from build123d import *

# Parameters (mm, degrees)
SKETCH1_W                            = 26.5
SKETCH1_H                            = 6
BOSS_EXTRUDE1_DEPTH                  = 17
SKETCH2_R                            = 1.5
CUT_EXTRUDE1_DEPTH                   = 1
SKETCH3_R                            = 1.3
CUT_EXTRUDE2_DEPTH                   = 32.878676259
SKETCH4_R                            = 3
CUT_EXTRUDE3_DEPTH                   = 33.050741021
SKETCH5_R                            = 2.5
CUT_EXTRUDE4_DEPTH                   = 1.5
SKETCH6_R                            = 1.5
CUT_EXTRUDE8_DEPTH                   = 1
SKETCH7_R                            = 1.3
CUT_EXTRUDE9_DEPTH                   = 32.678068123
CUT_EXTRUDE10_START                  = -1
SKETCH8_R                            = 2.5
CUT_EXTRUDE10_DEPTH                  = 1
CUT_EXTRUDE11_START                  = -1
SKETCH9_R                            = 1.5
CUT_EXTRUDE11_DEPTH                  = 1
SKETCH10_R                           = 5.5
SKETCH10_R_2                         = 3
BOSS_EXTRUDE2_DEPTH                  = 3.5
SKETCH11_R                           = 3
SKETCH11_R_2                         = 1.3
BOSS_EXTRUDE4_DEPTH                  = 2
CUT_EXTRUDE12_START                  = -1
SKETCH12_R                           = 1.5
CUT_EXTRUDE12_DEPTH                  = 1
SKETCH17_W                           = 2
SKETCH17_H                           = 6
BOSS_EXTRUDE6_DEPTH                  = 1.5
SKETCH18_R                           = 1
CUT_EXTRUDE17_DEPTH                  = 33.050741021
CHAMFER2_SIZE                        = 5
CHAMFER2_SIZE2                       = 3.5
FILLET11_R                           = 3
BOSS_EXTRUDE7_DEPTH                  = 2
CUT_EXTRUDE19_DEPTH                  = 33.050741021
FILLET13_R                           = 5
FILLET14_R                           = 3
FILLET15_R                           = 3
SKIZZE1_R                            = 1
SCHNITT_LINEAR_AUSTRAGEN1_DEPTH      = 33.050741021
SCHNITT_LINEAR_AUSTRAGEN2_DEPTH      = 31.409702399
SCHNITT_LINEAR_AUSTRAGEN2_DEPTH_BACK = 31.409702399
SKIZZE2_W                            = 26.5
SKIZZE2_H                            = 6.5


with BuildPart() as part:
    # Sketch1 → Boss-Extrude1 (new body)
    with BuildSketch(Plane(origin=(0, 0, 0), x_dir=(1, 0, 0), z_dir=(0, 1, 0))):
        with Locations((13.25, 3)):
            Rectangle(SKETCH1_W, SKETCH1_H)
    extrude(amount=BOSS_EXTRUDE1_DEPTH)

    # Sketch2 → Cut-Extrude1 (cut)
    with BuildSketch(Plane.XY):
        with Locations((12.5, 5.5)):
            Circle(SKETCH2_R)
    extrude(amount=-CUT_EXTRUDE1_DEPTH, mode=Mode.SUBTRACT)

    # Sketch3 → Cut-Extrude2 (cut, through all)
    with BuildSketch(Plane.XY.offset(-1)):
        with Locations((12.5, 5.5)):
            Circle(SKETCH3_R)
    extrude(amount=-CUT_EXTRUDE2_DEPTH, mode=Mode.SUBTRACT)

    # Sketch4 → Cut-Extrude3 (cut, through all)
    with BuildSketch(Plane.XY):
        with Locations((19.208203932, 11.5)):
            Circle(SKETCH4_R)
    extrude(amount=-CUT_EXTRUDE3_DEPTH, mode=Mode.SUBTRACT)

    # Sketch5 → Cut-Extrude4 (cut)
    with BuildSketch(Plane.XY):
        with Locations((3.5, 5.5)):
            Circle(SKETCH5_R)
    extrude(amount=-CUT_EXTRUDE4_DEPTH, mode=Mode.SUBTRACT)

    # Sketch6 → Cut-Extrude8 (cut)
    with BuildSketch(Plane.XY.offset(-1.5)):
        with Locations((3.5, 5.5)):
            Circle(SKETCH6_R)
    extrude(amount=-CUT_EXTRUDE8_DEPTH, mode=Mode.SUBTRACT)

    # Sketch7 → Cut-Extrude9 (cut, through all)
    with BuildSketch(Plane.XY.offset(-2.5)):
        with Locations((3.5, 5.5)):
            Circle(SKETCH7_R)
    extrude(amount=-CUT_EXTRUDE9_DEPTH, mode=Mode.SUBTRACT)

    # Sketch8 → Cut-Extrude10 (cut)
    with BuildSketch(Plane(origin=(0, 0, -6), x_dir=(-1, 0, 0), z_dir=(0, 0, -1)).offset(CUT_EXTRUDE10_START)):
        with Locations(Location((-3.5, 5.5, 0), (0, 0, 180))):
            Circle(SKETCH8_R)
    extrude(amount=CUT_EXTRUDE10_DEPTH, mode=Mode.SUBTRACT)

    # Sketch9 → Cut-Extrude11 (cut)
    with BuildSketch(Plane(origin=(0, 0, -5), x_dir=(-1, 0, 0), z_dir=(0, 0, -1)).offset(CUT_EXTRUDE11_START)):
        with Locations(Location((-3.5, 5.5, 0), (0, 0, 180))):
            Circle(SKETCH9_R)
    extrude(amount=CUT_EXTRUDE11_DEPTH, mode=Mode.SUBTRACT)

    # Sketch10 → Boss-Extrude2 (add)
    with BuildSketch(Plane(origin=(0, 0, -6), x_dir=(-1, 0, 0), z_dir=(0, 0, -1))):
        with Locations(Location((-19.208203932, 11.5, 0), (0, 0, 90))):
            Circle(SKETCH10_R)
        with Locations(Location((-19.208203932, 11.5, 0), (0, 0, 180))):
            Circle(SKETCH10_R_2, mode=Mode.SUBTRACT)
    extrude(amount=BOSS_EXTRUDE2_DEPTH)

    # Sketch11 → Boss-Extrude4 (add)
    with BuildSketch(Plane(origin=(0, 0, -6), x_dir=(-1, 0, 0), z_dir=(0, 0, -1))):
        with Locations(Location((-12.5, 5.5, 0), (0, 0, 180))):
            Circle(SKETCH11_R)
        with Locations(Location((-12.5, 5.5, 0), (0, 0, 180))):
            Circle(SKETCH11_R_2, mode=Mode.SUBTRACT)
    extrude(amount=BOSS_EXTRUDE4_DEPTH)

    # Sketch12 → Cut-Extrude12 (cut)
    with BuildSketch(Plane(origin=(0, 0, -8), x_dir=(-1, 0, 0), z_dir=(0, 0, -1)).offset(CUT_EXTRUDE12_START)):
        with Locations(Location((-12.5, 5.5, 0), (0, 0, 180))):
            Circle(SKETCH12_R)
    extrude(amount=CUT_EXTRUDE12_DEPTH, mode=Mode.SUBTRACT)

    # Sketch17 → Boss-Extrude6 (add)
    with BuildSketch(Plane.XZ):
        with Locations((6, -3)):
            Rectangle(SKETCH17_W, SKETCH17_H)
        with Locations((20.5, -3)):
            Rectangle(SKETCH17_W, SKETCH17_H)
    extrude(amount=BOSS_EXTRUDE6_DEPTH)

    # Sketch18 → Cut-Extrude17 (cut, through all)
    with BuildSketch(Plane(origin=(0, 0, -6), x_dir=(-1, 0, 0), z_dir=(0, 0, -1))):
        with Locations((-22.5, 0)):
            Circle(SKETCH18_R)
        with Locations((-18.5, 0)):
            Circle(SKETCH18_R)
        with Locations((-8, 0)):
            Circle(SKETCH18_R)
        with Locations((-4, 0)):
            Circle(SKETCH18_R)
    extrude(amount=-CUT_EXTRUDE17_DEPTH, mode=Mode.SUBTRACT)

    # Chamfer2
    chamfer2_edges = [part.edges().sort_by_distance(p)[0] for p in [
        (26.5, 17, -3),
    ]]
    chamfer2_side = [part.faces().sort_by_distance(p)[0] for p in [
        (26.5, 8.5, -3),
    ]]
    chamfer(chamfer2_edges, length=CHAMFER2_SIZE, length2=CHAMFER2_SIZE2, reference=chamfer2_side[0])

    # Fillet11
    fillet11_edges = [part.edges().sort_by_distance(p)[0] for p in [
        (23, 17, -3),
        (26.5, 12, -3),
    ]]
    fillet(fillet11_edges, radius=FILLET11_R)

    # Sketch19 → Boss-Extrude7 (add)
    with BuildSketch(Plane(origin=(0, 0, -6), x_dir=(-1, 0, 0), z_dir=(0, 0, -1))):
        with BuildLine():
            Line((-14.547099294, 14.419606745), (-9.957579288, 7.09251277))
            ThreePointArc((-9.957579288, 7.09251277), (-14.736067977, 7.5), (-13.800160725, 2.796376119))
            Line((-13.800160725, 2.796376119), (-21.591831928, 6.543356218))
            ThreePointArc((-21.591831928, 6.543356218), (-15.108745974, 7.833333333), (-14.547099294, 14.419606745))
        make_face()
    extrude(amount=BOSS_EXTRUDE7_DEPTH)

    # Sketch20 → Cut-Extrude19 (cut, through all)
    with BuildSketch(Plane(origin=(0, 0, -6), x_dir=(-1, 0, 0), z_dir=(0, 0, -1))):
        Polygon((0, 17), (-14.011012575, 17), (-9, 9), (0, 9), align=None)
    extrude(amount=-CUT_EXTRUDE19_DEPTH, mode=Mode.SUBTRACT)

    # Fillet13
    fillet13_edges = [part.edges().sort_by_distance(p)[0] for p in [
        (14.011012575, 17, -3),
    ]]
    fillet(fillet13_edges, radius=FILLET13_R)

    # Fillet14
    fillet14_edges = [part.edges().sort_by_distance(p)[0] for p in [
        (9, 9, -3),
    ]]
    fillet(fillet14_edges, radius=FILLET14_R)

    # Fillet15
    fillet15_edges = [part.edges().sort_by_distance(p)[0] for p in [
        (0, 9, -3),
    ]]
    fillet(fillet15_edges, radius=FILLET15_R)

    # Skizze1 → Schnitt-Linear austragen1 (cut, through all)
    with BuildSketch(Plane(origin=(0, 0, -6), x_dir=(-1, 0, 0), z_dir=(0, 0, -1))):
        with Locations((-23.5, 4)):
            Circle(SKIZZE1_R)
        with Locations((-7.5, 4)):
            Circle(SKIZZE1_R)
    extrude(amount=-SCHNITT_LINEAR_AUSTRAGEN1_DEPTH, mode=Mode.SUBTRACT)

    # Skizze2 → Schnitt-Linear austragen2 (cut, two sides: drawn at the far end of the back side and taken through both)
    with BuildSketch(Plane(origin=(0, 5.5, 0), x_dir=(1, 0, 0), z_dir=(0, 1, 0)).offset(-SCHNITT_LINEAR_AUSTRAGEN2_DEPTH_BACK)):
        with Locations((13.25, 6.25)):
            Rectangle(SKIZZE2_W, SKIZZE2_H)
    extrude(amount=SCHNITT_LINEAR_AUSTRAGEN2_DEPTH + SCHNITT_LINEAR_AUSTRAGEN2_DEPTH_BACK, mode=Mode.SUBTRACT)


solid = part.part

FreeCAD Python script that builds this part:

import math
import FreeCAD as App
import Part
import Sketcher

V = App.Vector


def edges_at(feature, points):
    """Names of the edges that pass closest to the given points."""
    edges = feature.Shape.Edges
    near = lambda p: min(range(len(edges)), key=lambda i: edges[i].distToShape(Part.Vertex(*p))[0])
    return sorted({f"Edge{near(p) + 1}" for p in points})


def add_polygon(sketch, points):
    """Adds a closed chain of lines whose ends are joined by coincident constraints."""
    first, n = sketch.GeometryCount, len(points)
    for a, b in zip(points, points[1:] + points[:1]):
        sketch.addGeometry(Part.LineSegment(App.Vector(*a, 0), App.Vector(*b, 0)), False)
    for i in range(n):
        sketch.addConstraint(Sketcher.Constraint("Coincident", first + i, 2, first + (i + 1) % n, 1))

doc = App.newDocument("Part")
body = doc.addObject("PartDesign::Body", "Body")

# Sketch on XZ plane
sketch1 = body.newObject("Sketcher::SketchObject", "Sketch")
sketch1.AttachmentSupport = (doc.getObject("XZ_Plane"), [""])
sketch1.MapMode = "FlatFace"
add_polygon(sketch1, [(0, -6), (0, 0), (26, 0), (26, -6)])  # lines 0-3
sketch1.addConstraint(Sketcher.Constraint("Vertical", 0))
sketch1.addConstraint(Sketcher.Constraint("Horizontal", 1))
sketch1.addConstraint(Sketcher.Constraint("Vertical", 2))
sketch1.addConstraint(Sketcher.Constraint("Horizontal", 3))
sketch1.addConstraint(Sketcher.Constraint("Coincident", 0, 2, -1, 1))
sketch1.addConstraint(Sketcher.Constraint("DistanceY", 0, 1, 0, 2, 6.0))
sketch1.addConstraint(Sketcher.Constraint("DistanceX", 1, 1, 1, 2, 26.5))
pad1 = body.newObject("PartDesign::Pad", "Pad")
pad1.Profile = sketch1
pad1.Length = 17
pad1.Reversed = True

# Sketch on XY plane
sketch2 = body.newObject("Sketcher::SketchObject", "Sketch001")
sketch2.AttachmentSupport = (doc.getObject("XY_Plane"), [""])
sketch2.MapMode = "FlatFace"
sketch2.addGeometry(Part.Circle(V(12.5, 5.5, 0), V(0, 0, 1), 1.5), False)
sketch2.addConstraint(Sketcher.Constraint("Diameter", 0, 3.0))
sketch2.addConstraint(Sketcher.Constraint("DistanceX", -1, 1, 0, 3, 12.5))
sketch2.addConstraint(Sketcher.Constraint("DistanceY", -1, 1, 0, 3, 5.5))
pocket1 = body.newObject("PartDesign::Pocket", "Pocket")
pocket1.Profile = sketch2
pocket1.Length = 1

# Sketch on XY plane
sketch3 = body.newObject("Sketcher::SketchObject", "Sketch002")
sketch3.AttachmentSupport = (doc.getObject("XY_Plane"), [""])
sketch3.MapMode = "FlatFace"
sketch3.AttachmentOffset = App.Placement(V(0, 0, -1), App.Rotation())
sketch3.addGeometry(Part.Circle(V(12.5, 5.5, 0), V(0, 0, 1), 1.3), False)
sketch3.addConstraint(Sketcher.Constraint("Diameter", 0, 2.6))
sketch3.addConstraint(Sketcher.Constraint("DistanceX", -1, 1, 0, 3, 12.5))
sketch3.addConstraint(Sketcher.Constraint("DistanceY", -1, 1, 0, 3, 5.5))
pocket2 = body.newObject("PartDesign::Pocket", "Pocket001")
pocket2.Profile = sketch3
pocket2.Type = "ThroughAll"

# Sketch on XY plane
sketch4 = body.newObject("Sketcher::SketchObject", "Sketch003")
sketch4.AttachmentSupport = (doc.getObject("XY_Plane"), [""])
sketch4.MapMode = "FlatFace"
sketch4.addGeometry(Part.Circle(V(19.2, 11.5, 0), V(0, 0, 1), 3), False)
sketch4.addConstraint(Sketcher.Constraint("Diameter", 0, 6.0))
sketch4.addConstraint(Sketcher.Constraint("DistanceY", -1, 1, 0, 3, 11.5))
sketch4.addConstraint(Sketcher.Constraint("DistanceX", -1, 1, 0, 3, 19.208204))
pocket3 = body.newObject("PartDesign::Pocket", "Pocket002")
pocket3.Profile = sketch4
pocket3.Type = "ThroughAll"

# Sketch on XY plane
sketch5 = body.newObject("Sketcher::SketchObject", "Sketch004")
sketch5.AttachmentSupport = (doc.getObject("XY_Plane"), [""])
sketch5.MapMode = "FlatFace"
sketch5.addGeometry(Part.Circle(V(3.5, 5.5, 0), V(0, 0, 1), 2.5), False)
sketch5.addConstraint(Sketcher.Constraint("Diameter", 0, 5.0))
sketch5.addConstraint(Sketcher.Constraint("DistanceX", -1, 1, 0, 3, 3.5))
sketch5.addConstraint(Sketcher.Constraint("DistanceY", -1, 1, 0, 3, 5.5))
pocket4 = body.newObject("PartDesign::Pocket", "Pocket003")
pocket4.Profile = sketch5
pocket4.Length = 1.5

# Sketch on XY plane
sketch6 = body.newObject("Sketcher::SketchObject", "Sketch005")
sketch6.AttachmentSupport = (doc.getObject("XY_Plane"), [""])
sketch6.MapMode = "FlatFace"
sketch6.AttachmentOffset = App.Placement(V(0, 0, -1.5), App.Rotation())
sketch6.addGeometry(Part.Circle(V(3.5, 5.5, 0), V(0, 0, 1), 1.5), False)
sketch6.addConstraint(Sketcher.Constraint("Diameter", 0, 3.0))
sketch6.addConstraint(Sketcher.Constraint("DistanceX", -1, 1, 0, 3, 3.5))
sketch6.addConstraint(Sketcher.Constraint("DistanceY", -1, 1, 0, 3, 5.5))
pocket5 = body.newObject("PartDesign::Pocket", "Pocket004")
pocket5.Profile = sketch6
pocket5.Length = 1

# Sketch on XY plane
sketch7 = body.newObject("Sketcher::SketchObject", "Sketch006")
sketch7.AttachmentSupport = (doc.getObject("XY_Plane"), [""])
sketch7.MapMode = "FlatFace"
sketch7.AttachmentOffset = App.Placement(V(0, 0, -2.5), App.Rotation())
sketch7.addGeometry(Part.Circle(V(3.5, 5.5, 0), V(0, 0, 1), 1.3), False)
sketch7.addConstraint(Sketcher.Constraint("Diameter", 0, 2.6))
sketch7.addConstraint(Sketcher.Constraint("DistanceX", -1, 1, 0, 3, 3.5))
sketch7.addConstraint(Sketcher.Constraint("DistanceY", -1, 1, 0, 3, 5.5))
pocket6 = body.newObject("PartDesign::Pocket", "Pocket005")
pocket6.Profile = sketch7
pocket6.Type = "ThroughAll"

# Sketch on XY plane
sketch8 = body.newObject("Sketcher::SketchObject", "Sketch007")
sketch8.AttachmentSupport = (doc.getObject("XY_Plane"), [""])
sketch8.MapMode = "FlatFace"
sketch8.AttachmentOffset = App.Placement(V(0, 0, -5), App.Rotation())
sketch8.addGeometry(Part.Circle(V(3.5, 5.5, 0), V(0, 0, 1), 2.5), False)
sketch8.addConstraint(Sketcher.Constraint("Diameter", 0, 5.0))
sketch8.addConstraint(Sketcher.Constraint("DistanceX", -1, 1, 0, 3, 3.5))
sketch8.addConstraint(Sketcher.Constraint("DistanceY", -1, 1, 0, 3, 5.5))
pocket7 = body.newObject("PartDesign::Pocket", "Pocket006")
pocket7.Profile = sketch8
pocket7.Length = 1

# Sketch on XY plane
sketch9 = body.newObject("Sketcher::SketchObject", "Sketch008")
sketch9.AttachmentSupport = (doc.getObject("XY_Plane"), [""])
sketch9.MapMode = "FlatFace"
sketch9.AttachmentOffset = App.Placement(V(0, 0, -4), App.Rotation())
sketch9.addGeometry(Part.Circle(V(3.5, 5.5, 0), V(0, 0, 1), 1.5), False)
sketch9.addConstraint(Sketcher.Constraint("Diameter", 0, 3.0))
sketch9.addConstraint(Sketcher.Constraint("DistanceX", -1, 1, 0, 3, 3.5))
sketch9.addConstraint(Sketcher.Constraint("DistanceY", -1, 1, 0, 3, 5.5))
pocket8 = body.newObject("PartDesign::Pocket", "Pocket007")
pocket8.Profile = sketch9
pocket8.Length = 1

# Sketch on XY plane
sketch10 = body.newObject("Sketcher::SketchObject", "Sketch009")
sketch10.AttachmentSupport = (doc.getObject("XY_Plane"), [""])
sketch10.MapMode = "FlatFace"
sketch10.AttachmentOffset = App.Placement(V(0, 0, -6), App.Rotation())
sketch10.addGeometry(Part.Circle(V(19.2, 11.5, 0), V(0, 0, 1), 5.5), False)
sketch10.addGeometry(Part.Circle(V(19.2, 11.5, 0), V(0, 0, 1), 3), False)
sketch10.addConstraint(Sketcher.Constraint("Coincident", 1, 3, 0, 3))
sketch10.addConstraint(Sketcher.Constraint("Diameter", 0, 11.0))
sketch10.addConstraint(Sketcher.Constraint("Diameter", 1, 6.0))
sketch10.addConstraint(Sketcher.Constraint("DistanceY", -1, 1, 0, 3, 11.5))
sketch10.addConstraint(Sketcher.Constraint("DistanceX", -1, 1, 0, 3, 19.208204))
pad2 = body.newObject("PartDesign::Pad", "Pad001")
pad2.Profile = sketch10
pad2.Length = 3.5
pad2.Reversed = True

# Sketch on XY plane
sketch11 = body.newObject("Sketcher::SketchObject", "Sketch010")
sketch11.AttachmentSupport = (doc.getObject("XY_Plane"), [""])
sketch11.MapMode = "FlatFace"
sketch11.AttachmentOffset = App.Placement(V(0, 0, -6), App.Rotation())
sketch11.addGeometry(Part.Circle(V(12.5, 5.5, 0), V(0, 0, 1), 3), False)
sketch11.addGeometry(Part.Circle(V(12.5, 5.5, 0), V(0, 0, 1), 1.3), False)
sketch11.addConstraint(Sketcher.Constraint("Coincident", 1, 3, 0, 3))
sketch11.addConstraint(Sketcher.Constraint("Diameter", 0, 6.0))
sketch11.addConstraint(Sketcher.Constraint("Diameter", 1, 2.6))
sketch11.addConstraint(Sketcher.Constraint("DistanceX", -1, 1, 0, 3, 12.5))
sketch11.addConstraint(Sketcher.Constraint("DistanceY", -1, 1, 0, 3, 5.5))
pad3 = body.newObject("PartDesign::Pad", "Pad002")
pad3.Profile = sketch11
pad3.Length = 2
pad3.Reversed = True

# Sketch on XY plane
sketch12 = body.newObject("Sketcher::SketchObject", "Sketch011")
sketch12.AttachmentSupport = (doc.getObject("XY_Plane"), [""])
sketch12.MapMode = "FlatFace"
sketch12.AttachmentOffset = App.Placement(V(0, 0, -7), App.Rotation())
sketch12.addGeometry(Part.Circle(V(12.5, 5.5, 0), V(0, 0, 1), 1.5), False)
sketch12.addConstraint(Sketcher.Constraint("Diameter", 0, 3.0))
sketch12.addConstraint(Sketcher.Constraint("DistanceX", -1, 1, 0, 3, 12.5))
sketch12.addConstraint(Sketcher.Constraint("DistanceY", -1, 1, 0, 3, 5.5))
pocket9 = body.newObject("PartDesign::Pocket", "Pocket008")
pocket9.Profile = sketch12
pocket9.Length = 1

# Sketch on XZ plane
sketch13 = body.newObject("Sketcher::SketchObject", "Sketch012")
sketch13.AttachmentSupport = (doc.getObject("XZ_Plane"), [""])
sketch13.MapMode = "FlatFace"
add_polygon(sketch13, [(5, 0), (5, -6), (7, -6), (7, 0)])  # lines 0-3
add_polygon(sketch13, [(19.5, 0), (19.5, -6), (21.5, -6), (21.5, 0)])  # lines 4-7
sketch13.addConstraint(Sketcher.Constraint("Vertical", 0))
sketch13.addConstraint(Sketcher.Constraint("Horizontal", 1))
sketch13.addConstraint(Sketcher.Constraint("Vertical", 2))
sketch13.addConstraint(Sketcher.Constraint("Horizontal", 3))
sketch13.addConstraint(Sketcher.Constraint("Vertical", 4))
sketch13.addConstraint(Sketcher.Constraint("Horizontal", 5))
sketch13.addConstraint(Sketcher.Constraint("Vertical", 6))
sketch13.addConstraint(Sketcher.Constraint("Horizontal", 7))
sketch13.addConstraint(Sketcher.Constraint("PointOnObject", 2, 2, -1))
sketch13.addConstraint(Sketcher.Constraint("PointOnObject", 6, 2, -1))
sketch13.addConstraint(Sketcher.Constraint("Horizontal", 1, 2, 4, 2))
sketch13.addConstraint(Sketcher.Constraint("Equal", 3, 5))
sketch13.addConstraint(Sketcher.Constraint("DistanceX", 1, 1, 1, 2, 2.0))
sketch13.addConstraint(Sketcher.Constraint("DistanceY", 0, 2, 0, 1, 6.0))
sketch13.addConstraint(Sketcher.Constraint("DistanceX", -1, 1, 0, 2, 5.0))
sketch13.addConstraint(Sketcher.Constraint("DistanceX", -1, 1, 4, 2, 19.5))
pad4 = body.newObject("PartDesign::Pad", "Pad003")
pad4.Profile = sketch13
pad4.Length = 1.5

# Sketch on XY plane
sketch14 = body.newObject("Sketcher::SketchObject", "Sketch013")
sketch14.AttachmentSupport = (doc.getObject("XY_Plane"), [""])
sketch14.MapMode = "FlatFace"
sketch14.AttachmentOffset = App.Placement(V(0, 0, -6), App.Rotation())
sketch14.addGeometry(Part.Circle(V(22.5, 0, 0), V(0, 0, 1), 1), False)
sketch14.addGeometry(Part.Circle(V(18.5, 0, 0), V(0, 0, 1), 1), False)
sketch14.addGeometry(Part.Circle(V(8, 0, 0), V(0, 0, 1), 1), False)
sketch14.addGeometry(Part.Circle(V(4, 0, 0), V(0, 0, 1), 1), False)
sketch14.addConstraint(Sketcher.Constraint("Equal", 0, 1))
sketch14.addConstraint(Sketcher.Constraint("Equal", 1, 2))
sketch14.addConstraint(Sketcher.Constraint("Equal", 2, 3))
sketch14.addConstraint(Sketcher.Constraint("PointOnObject", 0, 3, -1))
sketch14.addConstraint(Sketcher.Constraint("PointOnObject", 1, 3, -1))
sketch14.addConstraint(Sketcher.Constraint("PointOnObject", 2, 3, -1))
sketch14.addConstraint(Sketcher.Constraint("PointOnObject", 3, 3, -1))
sketch14.addConstraint(Sketcher.Constraint("Diameter", 0, 2.0))
sketch14.addConstraint(Sketcher.Constraint("DistanceX", -1, 1, 2, 3, 8.0))
sketch14.addConstraint(Sketcher.Constraint("DistanceX", -1, 1, 3, 3, 4.0))
sketch14.addConstraint(Sketcher.Constraint("DistanceX", 1, 3, 0, 3, 4.0))
sketch14.addConstraint(Sketcher.Constraint("DistanceX", -1, 1, 0, 3, 22.5))
pocket10 = body.newObject("PartDesign::Pocket", "Pocket009")
pocket10.Profile = sketch14
pocket10.Type = "ThroughAll"
pocket10.Reversed = True
doc.recompute()

chamfer = body.newObject("PartDesign::Chamfer", "Chamfer")
chamfer.Base = (pocket10, edges_at(pocket10, [(26.5, 17, -3)]))
chamfer.ChamferType = "Two distances"
chamfer.Size = 5
chamfer.Size2 = 3.5
doc.recompute()

fillet = body.newObject("PartDesign::Fillet", "Fillet")
fillet.Base = (chamfer, edges_at(chamfer, [(23, 17, -3), (26.5, 12, -3)]))
fillet.Radius = 3

# Sketch on XY plane
sketch15 = body.newObject("Sketcher::SketchObject", "Sketch014")
sketch15.AttachmentSupport = (doc.getObject("XY_Plane"), [""])
sketch15.MapMode = "FlatFace"
sketch15.AttachmentOffset = App.Placement(V(0, 0, -6), App.Rotation())
sketch15.addGeometry(Part.LineSegment(V(10, 7.1, 0), V(14.5, 14.4, 0)), False)
sketch15.addGeometry(Part.ArcOfCircle(Part.Circle(V(19.2, 11.5, 0), V(0, 0, 1), 5.5), math.radians(148), math.radians(296)), False)
sketch15.addGeometry(Part.LineSegment(V(21.6, 6.5, 0), V(13.8, 2.8, 0)), False)
sketch15.addGeometry(Part.ArcOfCircle(Part.Circle(V(12.5, 5.5, 0), V(0, 0, 1), 3), math.radians(-64), math.radians(148)), False)
sketch15.addConstraint(Sketcher.Constraint("Tangent", 0, 2, 1, 1))
sketch15.addConstraint(Sketcher.Constraint("Tangent", 1, 2, 2, 1))
sketch15.addConstraint(Sketcher.Constraint("Tangent", 2, 2, 3, 1))
sketch15.addConstraint(Sketcher.Constraint("Tangent", 3, 2, 0, 1))
sketch15.addConstraint(Sketcher.Constraint("Radius", 3, 3.0))
sketch15.addConstraint(Sketcher.Constraint("Radius", 1, 5.5))
sketch15.addConstraint(Sketcher.Constraint("DistanceY", 3, 3, 1, 3, 6.0))
sketch15.addConstraint(Sketcher.Constraint("DistanceY", -1, 1, 1, 3, 11.5))
sketch15.addConstraint(Sketcher.Constraint("DistanceX", -1, 1, 3, 3, 12.5))
sketch15.addConstraint(Sketcher.Constraint("DistanceX", -1, 1, 0, 2, 14.547099))
pad5 = body.newObject("PartDesign::Pad", "Pad004")
pad5.Profile = sketch15
pad5.Length = 2
pad5.Reversed = True

# Sketch on XY plane
sketch16 = body.newObject("Sketcher::SketchObject", "Sketch015")
sketch16.AttachmentSupport = (doc.getObject("XY_Plane"), [""])
sketch16.MapMode = "FlatFace"
sketch16.AttachmentOffset = App.Placement(V(0, 0, -6), App.Rotation())
add_polygon(sketch16, [(0, 17), (14, 17), (9, 9), (0, 9)])  # lines 0-3
sketch16.addConstraint(Sketcher.Constraint("Horizontal", 0))
sketch16.addConstraint(Sketcher.Constraint("Horizontal", 2))
sketch16.addConstraint(Sketcher.Constraint("Vertical", 3))
sketch16.addConstraint(Sketcher.Constraint("PointOnObject", 2, 2, -2))
sketch16.addConstraint(Sketcher.Constraint("DistanceX", 2, 2, 2, 1, 9.0))
sketch16.addConstraint(Sketcher.Constraint("DistanceY", 3, 1, 3, 2, 8.0))
sketch16.addConstraint(Sketcher.Constraint("DistanceY", -1, 1, 0, 2, 17.0))
sketch16.addConstraint(Sketcher.Constraint("DistanceX", 0, 1, 0, 2, 14.011013))
pocket11 = body.newObject("PartDesign::Pocket", "Pocket010")
pocket11.Profile = sketch16
pocket11.Type = "ThroughAll"
pocket11.Reversed = True
doc.recompute()

fillet2 = body.newObject("PartDesign::Fillet", "Fillet001")
fillet2.Base = (pocket11, edges_at(pocket11, [(14.011, 17, -3)]))
fillet2.Radius = 5
doc.recompute()

fillet3 = body.newObject("PartDesign::Fillet", "Fillet002")
fillet3.Base = (fillet2, edges_at(fillet2, [(9, 9, -3)]))
fillet3.Radius = 3
doc.recompute()

fillet4 = body.newObject("PartDesign::Fillet", "Fillet003")
fillet4.Base = (fillet3, edges_at(fillet3, [(0, 9, -3)]))
fillet4.Radius = 3

# Sketch on XY plane
sketch17 = body.newObject("Sketcher::SketchObject", "Sketch016")
sketch17.AttachmentSupport = (doc.getObject("XY_Plane"), [""])
sketch17.MapMode = "FlatFace"
sketch17.AttachmentOffset = App.Placement(V(0, 0, -6), App.Rotation())
sketch17.addGeometry(Part.Circle(V(23.5, 4, 0), V(0, 0, 1), 1), False)
sketch17.addGeometry(Part.Circle(V(7.5, 4, 0), V(0, 0, 1), 1), False)
sketch17.addConstraint(Sketcher.Constraint("Equal", 0, 1))
sketch17.addConstraint(Sketcher.Constraint("Horizontal", 0, 3, 1, 3))
sketch17.addConstraint(Sketcher.Constraint("Diameter", 0, 2.0))
sketch17.addConstraint(Sketcher.Constraint("DistanceY", -1, 1, 0, 3, 4.0))
sketch17.addConstraint(Sketcher.Constraint("DistanceX", 1, 3, 0, 3, 16.0))
sketch17.addConstraint(Sketcher.Constraint("DistanceX", -1, 1, 0, 3, 23.5))
pocket12 = body.newObject("PartDesign::Pocket", "Pocket011")
pocket12.Profile = sketch17
pocket12.Type = "ThroughAll"
pocket12.Reversed = True

# Sketch on XZ plane
sketch18 = body.newObject("Sketcher::SketchObject", "Sketch017")
sketch18.AttachmentSupport = (doc.getObject("XZ_Plane"), [""])
sketch18.MapMode = "FlatFace"
sketch18.AttachmentOffset = App.Placement(V(0, 0, -5.5), App.Rotation())
add_polygon(sketch18, [(0, -10), (0, -3), (26, -3), (26, -10)])  # lines 0-3
sketch18.addConstraint(Sketcher.Constraint("Vertical", 0))
sketch18.addConstraint(Sketcher.Constraint("Horizontal", 1))
sketch18.addConstraint(Sketcher.Constraint("Vertical", 2))
sketch18.addConstraint(Sketcher.Constraint("Horizontal", 3))
sketch18.addConstraint(Sketcher.Constraint("PointOnObject", 0, 2, -2))
sketch18.addConstraint(Sketcher.Constraint("DistanceX", 1, 1, 1, 2, 26.5))
sketch18.addConstraint(Sketcher.Constraint("DistanceY", 0, 1, 0, 2, 6.5))
sketch18.addConstraint(Sketcher.Constraint("DistanceY", 0, 2, -1, 1, 3.0))
pocket13 = body.newObject("PartDesign::Pocket", "Pocket012")
pocket13.Profile = sketch18
pocket13.Type = "ThroughAll"
pocket13.Midplane = True

doc.recompute()
